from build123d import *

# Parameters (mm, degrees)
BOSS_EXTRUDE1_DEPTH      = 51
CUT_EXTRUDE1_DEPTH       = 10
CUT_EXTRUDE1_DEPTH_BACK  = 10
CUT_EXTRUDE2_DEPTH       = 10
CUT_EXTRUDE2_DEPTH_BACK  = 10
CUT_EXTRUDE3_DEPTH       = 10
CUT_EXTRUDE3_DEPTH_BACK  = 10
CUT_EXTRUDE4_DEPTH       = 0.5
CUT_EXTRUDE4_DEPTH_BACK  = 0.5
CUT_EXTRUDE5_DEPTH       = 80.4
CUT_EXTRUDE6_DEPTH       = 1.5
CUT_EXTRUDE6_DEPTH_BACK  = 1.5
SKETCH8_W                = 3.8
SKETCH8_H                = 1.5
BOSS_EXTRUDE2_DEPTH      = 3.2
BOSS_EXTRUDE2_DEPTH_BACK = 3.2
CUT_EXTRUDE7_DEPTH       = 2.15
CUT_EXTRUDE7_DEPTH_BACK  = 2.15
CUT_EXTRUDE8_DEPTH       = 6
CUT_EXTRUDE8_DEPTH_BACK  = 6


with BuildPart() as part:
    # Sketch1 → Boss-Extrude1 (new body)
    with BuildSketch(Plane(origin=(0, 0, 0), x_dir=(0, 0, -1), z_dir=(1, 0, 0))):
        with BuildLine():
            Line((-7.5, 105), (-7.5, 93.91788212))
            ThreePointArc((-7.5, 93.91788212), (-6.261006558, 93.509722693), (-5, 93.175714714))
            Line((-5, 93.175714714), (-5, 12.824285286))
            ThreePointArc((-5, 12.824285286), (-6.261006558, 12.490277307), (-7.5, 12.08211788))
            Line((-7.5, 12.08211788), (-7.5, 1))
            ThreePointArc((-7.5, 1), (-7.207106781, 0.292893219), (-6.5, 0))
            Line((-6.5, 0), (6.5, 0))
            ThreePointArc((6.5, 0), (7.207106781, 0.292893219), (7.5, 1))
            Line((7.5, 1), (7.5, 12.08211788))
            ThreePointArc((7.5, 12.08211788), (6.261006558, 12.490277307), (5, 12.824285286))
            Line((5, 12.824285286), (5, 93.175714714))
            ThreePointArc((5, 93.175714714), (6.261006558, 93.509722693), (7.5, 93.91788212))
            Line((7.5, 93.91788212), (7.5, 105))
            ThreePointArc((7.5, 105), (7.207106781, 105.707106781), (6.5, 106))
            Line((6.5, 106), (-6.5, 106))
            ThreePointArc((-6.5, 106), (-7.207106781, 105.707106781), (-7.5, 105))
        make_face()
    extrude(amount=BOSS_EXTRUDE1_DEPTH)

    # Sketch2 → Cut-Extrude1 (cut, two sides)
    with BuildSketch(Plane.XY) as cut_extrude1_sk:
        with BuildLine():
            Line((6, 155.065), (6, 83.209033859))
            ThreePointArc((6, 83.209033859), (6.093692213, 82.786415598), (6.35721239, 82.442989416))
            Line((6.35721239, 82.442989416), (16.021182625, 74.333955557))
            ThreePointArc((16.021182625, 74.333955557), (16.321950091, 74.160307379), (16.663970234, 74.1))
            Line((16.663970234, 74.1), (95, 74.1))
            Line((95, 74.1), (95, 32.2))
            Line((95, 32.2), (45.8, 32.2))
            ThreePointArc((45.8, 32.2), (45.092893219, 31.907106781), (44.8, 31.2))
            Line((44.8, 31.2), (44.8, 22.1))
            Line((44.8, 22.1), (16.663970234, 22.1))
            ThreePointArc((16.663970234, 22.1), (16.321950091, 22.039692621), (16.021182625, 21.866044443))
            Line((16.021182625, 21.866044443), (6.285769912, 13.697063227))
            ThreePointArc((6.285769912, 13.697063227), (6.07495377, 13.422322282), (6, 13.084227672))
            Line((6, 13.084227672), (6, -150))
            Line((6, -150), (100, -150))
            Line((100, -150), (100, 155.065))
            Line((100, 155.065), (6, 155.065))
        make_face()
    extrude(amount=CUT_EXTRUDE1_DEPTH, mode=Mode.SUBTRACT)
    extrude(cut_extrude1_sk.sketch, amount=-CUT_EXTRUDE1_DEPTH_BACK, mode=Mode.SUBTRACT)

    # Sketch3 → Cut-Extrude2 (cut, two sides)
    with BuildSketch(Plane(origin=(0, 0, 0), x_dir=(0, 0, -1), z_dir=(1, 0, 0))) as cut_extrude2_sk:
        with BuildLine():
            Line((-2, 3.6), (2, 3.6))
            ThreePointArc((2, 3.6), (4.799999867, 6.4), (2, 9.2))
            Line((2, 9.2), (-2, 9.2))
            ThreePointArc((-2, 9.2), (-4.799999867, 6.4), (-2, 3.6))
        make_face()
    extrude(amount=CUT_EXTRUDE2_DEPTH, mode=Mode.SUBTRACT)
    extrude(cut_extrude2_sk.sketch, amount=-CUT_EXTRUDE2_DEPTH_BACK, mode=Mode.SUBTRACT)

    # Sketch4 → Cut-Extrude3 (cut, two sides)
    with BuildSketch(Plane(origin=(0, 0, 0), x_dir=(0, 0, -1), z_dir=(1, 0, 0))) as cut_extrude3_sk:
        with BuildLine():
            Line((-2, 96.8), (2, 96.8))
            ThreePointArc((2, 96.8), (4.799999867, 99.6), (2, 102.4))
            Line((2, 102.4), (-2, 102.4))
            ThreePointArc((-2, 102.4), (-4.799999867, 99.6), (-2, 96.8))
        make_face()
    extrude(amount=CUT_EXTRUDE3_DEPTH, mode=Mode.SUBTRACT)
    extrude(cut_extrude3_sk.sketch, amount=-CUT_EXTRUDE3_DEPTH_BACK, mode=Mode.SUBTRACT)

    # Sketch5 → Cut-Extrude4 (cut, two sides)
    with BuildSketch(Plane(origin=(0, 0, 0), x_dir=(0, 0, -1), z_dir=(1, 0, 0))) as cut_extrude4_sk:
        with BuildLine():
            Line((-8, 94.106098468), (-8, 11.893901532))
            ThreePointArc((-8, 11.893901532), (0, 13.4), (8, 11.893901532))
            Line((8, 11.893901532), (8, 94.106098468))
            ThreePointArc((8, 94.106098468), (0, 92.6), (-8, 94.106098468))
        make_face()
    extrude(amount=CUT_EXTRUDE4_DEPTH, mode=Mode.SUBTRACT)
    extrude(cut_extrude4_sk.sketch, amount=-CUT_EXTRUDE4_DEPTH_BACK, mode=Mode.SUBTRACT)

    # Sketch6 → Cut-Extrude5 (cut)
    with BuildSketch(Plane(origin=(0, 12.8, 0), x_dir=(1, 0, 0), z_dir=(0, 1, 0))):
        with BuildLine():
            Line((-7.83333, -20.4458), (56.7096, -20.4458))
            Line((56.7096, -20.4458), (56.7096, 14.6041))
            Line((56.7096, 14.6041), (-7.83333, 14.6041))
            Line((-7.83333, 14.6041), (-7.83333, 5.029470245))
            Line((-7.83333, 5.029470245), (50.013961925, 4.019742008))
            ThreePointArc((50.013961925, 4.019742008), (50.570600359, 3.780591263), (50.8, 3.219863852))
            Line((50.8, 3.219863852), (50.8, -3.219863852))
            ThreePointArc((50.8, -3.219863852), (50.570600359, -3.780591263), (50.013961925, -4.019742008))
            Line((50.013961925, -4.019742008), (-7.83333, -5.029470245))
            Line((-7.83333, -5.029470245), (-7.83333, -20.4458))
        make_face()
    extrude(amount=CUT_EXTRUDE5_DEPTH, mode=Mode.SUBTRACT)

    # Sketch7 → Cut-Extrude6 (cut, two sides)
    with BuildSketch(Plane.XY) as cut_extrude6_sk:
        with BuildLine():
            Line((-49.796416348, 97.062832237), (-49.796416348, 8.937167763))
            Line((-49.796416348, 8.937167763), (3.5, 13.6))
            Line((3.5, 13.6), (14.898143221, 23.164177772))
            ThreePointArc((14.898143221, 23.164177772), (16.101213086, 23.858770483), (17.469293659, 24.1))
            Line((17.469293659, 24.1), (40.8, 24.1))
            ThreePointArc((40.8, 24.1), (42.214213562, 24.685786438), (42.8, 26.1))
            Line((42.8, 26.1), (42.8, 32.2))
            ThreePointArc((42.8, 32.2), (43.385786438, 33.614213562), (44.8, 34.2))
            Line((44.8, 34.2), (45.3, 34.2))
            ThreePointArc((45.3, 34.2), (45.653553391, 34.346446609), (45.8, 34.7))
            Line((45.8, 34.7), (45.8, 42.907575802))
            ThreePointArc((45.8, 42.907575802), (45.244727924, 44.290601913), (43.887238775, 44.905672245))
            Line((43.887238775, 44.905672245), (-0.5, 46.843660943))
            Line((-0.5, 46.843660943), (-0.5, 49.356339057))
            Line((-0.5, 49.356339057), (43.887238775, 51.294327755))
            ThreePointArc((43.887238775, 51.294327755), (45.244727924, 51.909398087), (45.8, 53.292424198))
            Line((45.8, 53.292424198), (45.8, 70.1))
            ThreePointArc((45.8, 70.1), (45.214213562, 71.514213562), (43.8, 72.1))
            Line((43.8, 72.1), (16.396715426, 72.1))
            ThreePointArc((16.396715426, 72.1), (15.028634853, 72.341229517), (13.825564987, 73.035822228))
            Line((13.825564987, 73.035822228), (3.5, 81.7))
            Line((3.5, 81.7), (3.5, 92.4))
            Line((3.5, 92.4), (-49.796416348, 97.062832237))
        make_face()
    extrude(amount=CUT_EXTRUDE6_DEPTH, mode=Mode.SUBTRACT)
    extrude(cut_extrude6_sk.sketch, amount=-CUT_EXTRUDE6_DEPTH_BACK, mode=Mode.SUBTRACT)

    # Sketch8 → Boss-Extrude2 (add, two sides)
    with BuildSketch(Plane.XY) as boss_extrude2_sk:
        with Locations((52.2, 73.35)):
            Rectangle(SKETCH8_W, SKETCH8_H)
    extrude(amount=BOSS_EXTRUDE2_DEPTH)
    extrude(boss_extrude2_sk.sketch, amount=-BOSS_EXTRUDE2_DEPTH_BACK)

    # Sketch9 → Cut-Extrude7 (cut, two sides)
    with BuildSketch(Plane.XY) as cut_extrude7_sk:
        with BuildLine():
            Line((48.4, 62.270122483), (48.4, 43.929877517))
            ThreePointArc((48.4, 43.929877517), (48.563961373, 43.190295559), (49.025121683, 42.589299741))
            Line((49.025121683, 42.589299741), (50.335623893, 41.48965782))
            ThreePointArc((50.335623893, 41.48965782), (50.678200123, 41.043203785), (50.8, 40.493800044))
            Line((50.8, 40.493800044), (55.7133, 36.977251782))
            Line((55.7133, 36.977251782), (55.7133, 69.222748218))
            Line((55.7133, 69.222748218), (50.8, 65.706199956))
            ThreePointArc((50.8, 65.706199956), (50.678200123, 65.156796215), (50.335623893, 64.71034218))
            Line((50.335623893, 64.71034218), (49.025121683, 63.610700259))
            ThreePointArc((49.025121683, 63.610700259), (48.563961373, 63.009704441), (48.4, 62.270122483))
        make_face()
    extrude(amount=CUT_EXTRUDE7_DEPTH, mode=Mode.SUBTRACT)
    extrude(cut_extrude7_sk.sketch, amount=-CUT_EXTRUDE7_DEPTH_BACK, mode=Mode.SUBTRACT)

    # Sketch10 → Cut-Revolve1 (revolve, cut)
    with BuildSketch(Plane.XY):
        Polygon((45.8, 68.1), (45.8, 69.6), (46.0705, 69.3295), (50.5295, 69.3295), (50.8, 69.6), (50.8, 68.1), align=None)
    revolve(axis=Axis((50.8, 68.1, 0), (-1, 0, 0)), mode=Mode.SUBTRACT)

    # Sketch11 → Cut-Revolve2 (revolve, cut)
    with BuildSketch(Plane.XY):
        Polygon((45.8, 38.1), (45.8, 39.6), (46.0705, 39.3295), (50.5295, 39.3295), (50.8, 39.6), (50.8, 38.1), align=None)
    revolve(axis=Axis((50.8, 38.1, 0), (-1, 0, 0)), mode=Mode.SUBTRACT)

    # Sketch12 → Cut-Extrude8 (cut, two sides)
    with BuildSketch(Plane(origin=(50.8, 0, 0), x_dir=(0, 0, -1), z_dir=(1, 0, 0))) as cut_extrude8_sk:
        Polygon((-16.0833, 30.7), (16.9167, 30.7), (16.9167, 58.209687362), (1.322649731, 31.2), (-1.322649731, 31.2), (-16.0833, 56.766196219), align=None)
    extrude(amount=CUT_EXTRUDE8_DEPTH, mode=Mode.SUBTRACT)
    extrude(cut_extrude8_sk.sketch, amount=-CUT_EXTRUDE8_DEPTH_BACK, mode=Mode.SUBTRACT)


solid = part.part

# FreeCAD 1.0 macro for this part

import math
import FreeCAD as App
import Part
import Sketcher

V = App.Vector
Q = App.Units.Quantity


def add_polygon(sketch, points):
    """Adds a closed chain of lines whose ends are joined by coincident constraints."""
    first, n = sketch.GeometryCount, len(points)
    for a, b in zip(points, points[1:] + points[:1]):
        sketch.addGeometry(Part.LineSegment(App.Vector(*a, 0), App.Vector(*b, 0)), False)
    for i in range(n):
        sketch.addConstraint(Sketcher.Constraint("Coincident", first + i, 2, first + (i + 1) % n, 1))

doc = App.newDocument("Part")
body = doc.addObject("PartDesign::Body", "Body")

# Sketch on YZ plane
sketch1 = doc.addObject("Sketcher::SketchObject", "Sketch")
body.addObject(sketch1)
sketch1.AttachmentSupport = (doc.YZ_Plane, [""])
sketch1.MapMode = "FlatFace"
sketch1.addGeometry(Part.LineSegment(V(105, 7.5, 0), V(93.9, 7.5, 0)), False)
sketch1.addGeometry(Part.ArcOfCircle(Part.Circle(V(114.6, 0, 0), V(0, 0, 1), 22), math.radians(160.07), math.radians(166.86)), False)
sketch1.addGeometry(Part.LineSegment(V(93.2, 5, 0), V(12.8, 5, 0)), False)
sketch1.addGeometry(Part.ArcOfCircle(Part.Circle(V(-8.6, 0, 0), V(0, 0, 1), 22), math.radians(13.14), math.radians(19.93)), False)
sketch1.addGeometry(Part.LineSegment(V(12.1, 7.5, 0), V(1, 7.5, 0)), False)
sketch1.addGeometry(Part.ArcOfCircle(Part.Circle(V(1, 6.5, 0), V(0, 0, 1), 1), math.radians(90), math.radians(180)), False)
sketch1.addGeometry(Part.LineSegment(V(0, 6.5, 0), V(0, -6.5, 0)), False)
sketch1.addGeometry(Part.ArcOfCircle(Part.Circle(V(1, -6.5, 0), V(0, 0, 1), 1), math.radians(-180), math.radians(-90)), False)
sketch1.addGeometry(Part.LineSegment(V(1, -7.5, 0), V(12.1, -7.5, 0)), False)
sketch1.addGeometry(Part.ArcOfCircle(Part.Circle(V(-8.6, 0, 0), V(0, 0, 1), 22), math.radians(-19.93), math.radians(-13.14)), False)
sketch1.addGeometry(Part.LineSegment(V(12.8, -5, 0), V(93.2, -5, 0)), False)
sketch1.addGeometry(Part.ArcOfCircle(Part.Circle(V(114.6, 0, 0), V(0, 0, 1), 22), math.radians(-166.86), math.radians(-160.07)), False)
sketch1.addGeometry(Part.LineSegment(V(93.9, -7.5, 0), V(105, -7.5, 0)), False)
sketch1.addGeometry(Part.ArcOfCircle(Part.Circle(V(105, -6.5, 0), V(0, 0, 1), 1), math.radians(-90), math.radians(0)), False)
sketch1.addGeometry(Part.LineSegment(V(106, -6.5, 0), V(106, 6.5, 0)), False)
sketch1.addGeometry(Part.ArcOfCircle(Part.Circle(V(105, 6.5, 0), V(0, 0, 1), 1), math.radians(0), math.radians(90)), False)
sketch1.addConstraint(Sketcher.Constraint("Coincident", 0, 2, 1, 1))
sketch1.addConstraint(Sketcher.Constraint("Coincident", 1, 2, 2, 1))
sketch1.addConstraint(Sketcher.Constraint("Coincident", 2, 2, 3, 1))
sketch1.addConstraint(Sketcher.Constraint("Coincident", 3, 2, 4, 1))
sketch1.addConstraint(Sketcher.Constraint("Tangent", 4, 2, 5, 1))
sketch1.addConstraint(Sketcher.Constraint("Tangent", 5, 2, 6, 1))
sketch1.addConstraint(Sketcher.Constraint("Tangent", 6, 2, 7, 1))
sketch1.addConstraint(Sketcher.Constraint("Tangent", 7, 2, 8, 1))
sketch1.addConstraint(Sketcher.Constraint("Coincident", 8, 2, 9, 1))
sketch1.addConstraint(Sketcher.Constraint("Coincident", 9, 2, 10, 1))
sketch1.addConstraint(Sketcher.Constraint("Coincident", 10, 2, 11, 1))
sketch1.addConstraint(Sketcher.Constraint("Coincident", 11, 2, 12, 1))
sketch1.addConstraint(Sketcher.Constraint("Tangent", 12, 2, 13, 1))
sketch1.addConstraint(Sketcher.Constraint("Tangent", 13, 2, 14, 1))
sketch1.addConstraint(Sketcher.Constraint("Tangent", 14, 2, 15, 1))
sketch1.addConstraint(Sketcher.Constraint("Tangent", 15, 2, 0, 1))
sketch1.addConstraint(Sketcher.Constraint("Horizontal", 0))
sketch1.addConstraint(Sketcher.Constraint("Horizontal", 2))
sketch1.addConstraint(Sketcher.Constraint("Horizontal", 4))
sketch1.addConstraint(Sketcher.Constraint("Vertical", 6))
sketch1.addConstraint(Sketcher.Constraint("Horizontal", 8))
sketch1.addConstraint(Sketcher.Constraint("Horizontal", 10))
sketch1.addConstraint(Sketcher.Constraint("Horizontal", 12))
sketch1.addConstraint(Sketcher.Constraint("Vertical", 14))
sketch1.addConstraint(Sketcher.Constraint("Coincident", 9, 3, 3, 3))
sketch1.addConstraint(Sketcher.Constraint("Coincident", 11, 3, 1, 3))
sketch1.addConstraint(Sketcher.Constraint("Equal", 1, 3))
sketch1.addConstraint(Sketcher.Constraint("Equal", 5, 7))
sketch1.addConstraint(Sketcher.Constraint("Equal", 3, 9))
sketch1.addConstraint(Sketcher.Constraint("Equal", 9, 11))
sketch1.addConstraint(Sketcher.Constraint("Equal", 7, 13))
sketch1.addConstraint(Sketcher.Constraint("Equal", 13, 15))
sketch1.addConstraint(Sketcher.Constraint("Symmetric", 5, 2, 6, 2, -1, 1))
sketch1.addConstraint(Sketcher.Constraint("Symmetric", 2, 2, 9, 2, -1))
sketch1.addConstraint(Sketcher.Constraint("Symmetric", 0, 2, 11, 2, -1))
sketch1.addConstraint(Sketcher.Constraint("Horizontal", 7, 3, 13, 3))
sketch1.addConstraint(Sketcher.Constraint("Equal", 0, 4))
sketch1.addConstraint(Sketcher.Constraint("Radius", 1, Q("22 mm")))
sketch1.addConstraint(Sketcher.Constraint("Radius", 5, Q("1 mm")))
sketch1.addConstraint(Sketcher.Constraint("DistanceY", 6, 2, 6, 1, Q("13 mm")))
sketch1.addConstraint(Sketcher.Constraint("DistanceX", -1, 1, 13, 3, Q("105 mm")))
sketch1.addConstraint(Sketcher.Constraint("DistanceY", -1, 1, 1, 2, Q("5 mm")))
sketch1.addConstraint(Sketcher.Constraint("DistanceX", -1, 1, 1, 3, Q("114.6 mm")))
pad1 = doc.addObject("PartDesign::Pad", "Pad")
body.addObject(pad1)
pad1.Profile = sketch1
pad1.Length = 51

# Sketch on XY plane
sketch2 = doc.addObject("Sketcher::SketchObject", "Sketch001")
body.addObject(sketch2)
sketch2.AttachmentSupport = (doc.XY_Plane, [""])
sketch2.MapMode = "FlatFace"
sketch2.addGeometry(Part.LineSegment(V(6, 155.1, 0), V(6, 83.2, 0)), False)
sketch2.addGeometry(Part.ArcOfCircle(Part.Circle(V(7, 83.2, 0), V(0, 0, 1), 1), math.radians(-180), math.radians(-130)), False)
sketch2.addGeometry(Part.LineSegment(V(6.4, 82.4, 0), V(16, 74.3, 0)), False)
sketch2.addGeometry(Part.ArcOfCircle(Part.Circle(V(16.7, 75.1, 0), V(0, 0, 1), 1), math.radians(-130), math.radians(-90)), False)
sketch2.addGeometry(Part.LineSegment(V(16.7, 74.1, 0), V(95, 74.1, 0)), False)
sketch2.addGeometry(Part.LineSegment(V(95, 74.1, 0), V(95, 32.2, 0)), False)
sketch2.addGeometry(Part.LineSegment(V(95, 32.2, 0), V(45.8, 32.2, 0)), False)
sketch2.addGeometry(Part.ArcOfCircle(Part.Circle(V(45.8, 31.2, 0), V(0, 0, 1), 1), math.radians(90), math.radians(180)), False)
sketch2.addGeometry(Part.LineSegment(V(44.8, 31.2, 0), V(44.8, 22.1, 0)), False)
sketch2.addGeometry(Part.LineSegment(V(44.8, 22.1, 0), V(16.7, 22.1, 0)), False)
sketch2.addGeometry(Part.ArcOfCircle(Part.Circle(V(16.7, 21.1, 0), V(0, 0, 1), 1), math.radians(90), math.radians(130)), False)
sketch2.addGeometry(Part.LineSegment(V(16, 21.9, 0), V(6.3, 13.7, 0)), False)
sketch2.addGeometry(Part.ArcOfCircle(Part.Circle(V(6.8, 13.1, 0), V(0, 0, 1), 0.8), math.radians(130), math.radians(180)), False)
sketch2.addGeometry(Part.LineSegment(V(6, 13.1, 0), V(6, -150, 0)), False)
sketch2.addGeometry(Part.LineSegment(V(6, -150, 0), V(100, -150, 0)), False)
sketch2.addGeometry(Part.LineSegment(V(100, -150, 0), V(100, 155.1, 0)), False)
sketch2.addGeometry(Part.LineSegment(V(100, 155.1, 0), V(6, 155.1, 0)), False)
sketch2.addConstraint(Sketcher.Constraint("Tangent", 0, 2, 1, 1))
sketch2.addConstraint(Sketcher.Constraint("Tangent", 1, 2, 2, 1))
sketch2.addConstraint(Sketcher.Constraint("Tangent", 2, 2, 3, 1))
sketch2.addConstraint(Sketcher.Constraint("Tangent", 3, 2, 4, 1))
sketch2.addConstraint(Sketcher.Constraint("Coincident", 4, 2, 5, 1))
sketch2.addConstraint(Sketcher.Constraint("Coincident", 5, 2, 6, 1))
sketch2.addConstraint(Sketcher.Constraint("Tangent", 6, 2, 7, 1))
sketch2.addConstraint(Sketcher.Constraint("Tangent", 7, 2, 8, 1))
sketch2.addConstraint(Sketcher.Constraint("Coincident", 8, 2, 9, 1))
sketch2.addConstraint(Sketcher.Constraint("Tangent", 9, 2, 10, 1))
sketch2.addConstraint(Sketcher.Constraint("Tangent", 10, 2, 11, 1))
sketch2.addConstraint(Sketcher.Constraint("Tangent", 11, 2, 12, 1))
sketch2.addConstraint(Sketcher.Constraint("Tangent", 12, 2, 13, 1))
sketch2.addConstraint(Sketcher.Constraint("Coincident", 13, 2, 14, 1))
sketch2.addConstraint(Sketcher.Constraint("Coincident", 14, 2, 15, 1))
sketch2.addConstraint(Sketcher.Constraint("Coincident", 15, 2, 16, 1))
sketch2.addConstraint(Sketcher.Constraint("Coincident", 16, 2, 0, 1))
sketch2.addConstraint(Sketcher.Constraint("Vertical", 0))
sketch2.addConstraint(Sketcher.Constraint("Horizontal", 4))
sketch2.addConstraint(Sketcher.Constraint("Vertical", 5))
sketch2.addConstraint(Sketcher.Constraint("Horizontal", 6))
sketch2.addConstraint(Sketcher.Constraint("Vertical", 8))
sketch2.addConstraint(Sketcher.Constraint("Horizontal", 9))
sketch2.addConstraint(Sketcher.Constraint("Vertical", 13))
sketch2.addConstraint(Sketcher.Constraint("Horizontal", 14))
sketch2.addConstraint(Sketcher.Constraint("Vertical", 15))
sketch2.addConstraint(Sketcher.Constraint("Horizontal", 16))
sketch2.addConstraint(Sketcher.Constraint("Equal", 1, 3))
sketch2.addConstraint(Sketcher.Constraint("Equal", 3, 7))
sketch2.addConstraint(Sketcher.Constraint("Equal", 7, 10))
sketch2.addConstraint(Sketcher.Constraint("Vertical", 3, 3, 10, 3))
sketch2.addConstraint(Sketcher.Constraint("Vertical", 2, 2, 10, 2))
sketch2.addConstraint(Sketcher.Constraint("Vertical", 0, 2, 12, 2))
sketch2.addConstraint(Sketcher.Constraint("Radius", 1, Q("1 mm")))
sketch2.addConstraint(Sketcher.Constraint("Radius", 12, Q("0.8 mm")))
sketch2.addConstraint(Sketcher.Constraint("DistanceX", 14, 1, 14, 2, Q("94 mm")))
sketch2.addConstraint(Sketcher.Constraint("Angle", 2, Q("-40 deg")))
sketch2.addConstraint(Sketcher.Constraint("DistanceX", 6, 2, 6, 1, Q("49.2 mm")))
sketch2.addConstraint(Sketcher.Constraint("DistanceY", 5, 2, 5, 1, Q("41.9 mm")))
sketch2.addConstraint(Sketcher.Constraint("DistanceY", 8, 2, 8, 1, Q("9.1 mm")))
sketch2.addConstraint(Sketcher.Constraint("DistanceX", -1, 1, 1, 3, Q("7 mm")))
sketch2.addConstraint(Sketcher.Constraint("DistanceX", -1, 1, 4, 2, Q("95 mm")))
sketch2.addConstraint(Sketcher.Constraint("DistanceY", 13, 2, -1, 1, Q("150 mm")))
sketch2.addConstraint(Sketcher.Constraint("DistanceY", -1, 1, 3, 3, Q("75.1 mm")))
sketch2.addConstraint(Sketcher.Constraint("DistanceY", 15, 1, 15, 2, Q("305.065 mm")))
sketch2.addConstraint(Sketcher.Constraint("DistanceX", 4, 1, 4, 2, Q("78.33603 mm")))
pocket1 = doc.addObject("PartDesign::Pocket", "Pocket")
body.addObject(pocket1)
pocket1.Profile = sketch2
pocket1.Type = "ThroughAll"
pocket1.Midplane = True

# Sketch on YZ plane
sketch3 = doc.addObject("Sketcher::SketchObject", "Sketch002")
body.addObject(sketch3)
sketch3.AttachmentSupport = (doc.YZ_Plane, [""])
sketch3.MapMode = "FlatFace"
sketch3.addGeometry(Part.LineSegment(V(3.6, 2, 0), V(3.6, -2, 0)), False)
sketch3.addGeometry(Part.ArcOfCircle(Part.Circle(V(6.4, -2, 0), V(0, 0, 1), 2.8), math.radians(-180), math.radians(0)), False)
sketch3.addGeometry(Part.LineSegment(V(9.2, -2, 0), V(9.2, 2, 0)), False)
sketch3.addGeometry(Part.ArcOfCircle(Part.Circle(V(6.4, 2, 0), V(0, 0, 1), 2.8), math.radians(0), math.radians(180)), False)
sketch3.addConstraint(Sketcher.Constraint("Tangent", 0, 2, 1, 1))
sketch3.addConstraint(Sketcher.Constraint("Tangent", 1, 2, 2, 1))
sketch3.addConstraint(Sketcher.Constraint("Tangent", 2, 2, 3, 1))
sketch3.addConstraint(Sketcher.Constraint("Tangent", 3, 2, 0, 1))
sketch3.addConstraint(Sketcher.Constraint("Vertical", 0))
sketch3.addConstraint(Sketcher.Constraint("Vertical", 2))
sketch3.addConstraint(Sketcher.Constraint("Radius", 1, Q("2.8 mm")))
sketch3.addConstraint(Sketcher.Constraint("DistanceY", 0, 2, 0, 1, Q("4 mm")))
sketch3.addConstraint(Sketcher.Constraint("DistanceY", 1, 3, -1, 1, Q("2 mm")))
sketch3.addConstraint(Sketcher.Constraint("DistanceX", -1, 1, 1, 3, Q("6.4 mm")))
pocket2 = doc.addObject("PartDesign::Pocket", "Pocket001")
body.addObject(pocket2)
pocket2.Profile = sketch3
pocket2.Type = "ThroughAll"
pocket2.Midplane = True

# Sketch on YZ plane
sketch4 = doc.addObject("Sketcher::SketchObject", "Sketch003")
body.addObject(sketch4)
sketch4.AttachmentSupport = (doc.YZ_Plane, [""])
sketch4.MapMode = "FlatFace"
sketch4.addGeometry(Part.LineSegment(V(96.8, 2, 0), V(96.8, -2, 0)), False)
sketch4.addGeometry(Part.ArcOfCircle(Part.Circle(V(99.6, -2, 0), V(0, 0, 1), 2.8), math.radians(-180), math.radians(0)), False)
sketch4.addGeometry(Part.LineSegment(V(102.4, -2, 0), V(102.4, 2, 0)), False)
sketch4.addGeometry(Part.ArcOfCircle(Part.Circle(V(99.6, 2, 0), V(0, 0, 1), 2.8), math.radians(0), math.radians(180)), False)
sketch4.addConstraint(Sketcher.Constraint("Tangent", 0, 2, 1, 1))
sketch4.addConstraint(Sketcher.Constraint("Tangent", 1, 2, 2, 1))
sketch4.addConstraint(Sketcher.Constraint("Tangent", 2, 2, 3, 1))
sketch4.addConstraint(Sketcher.Constraint("Tangent", 3, 2, 0, 1))
sketch4.addConstraint(Sketcher.Constraint("Vertical", 0))
sketch4.addConstraint(Sketcher.Constraint("Vertical", 2))
sketch4.addConstraint(Sketcher.Constraint("Radius", 1, Q("2.8 mm")))
sketch4.addConstraint(Sketcher.Constraint("DistanceY", 0, 2, 0, 1, Q("4 mm")))
sketch4.addConstraint(Sketcher.Constraint("DistanceY", 1, 3, -1, 1, Q("2 mm")))
sketch4.addConstraint(Sketcher.Constraint("DistanceX", -1, 1, 1, 3, Q("99.6 mm")))
pocket3 = doc.addObject("PartDesign::Pocket", "Pocket002")
body.addObject(pocket3)
pocket3.Profile = sketch4
pocket3.Type = "ThroughAll"
pocket3.Midplane = True

# Sketch on YZ plane
sketch5 = doc.addObject("Sketcher::SketchObject", "Sketch004")
body.addObject(sketch5)
sketch5.AttachmentSupport = (doc.YZ_Plane, [""])
sketch5.MapMode = "FlatFace"
sketch5.addGeometry(Part.LineSegment(V(94, 8, 0), V(12, 8, 0)), False)
sketch5.addGeometry(Part.ArcOfCircle(Part.Circle(V(-9, 0, 0), V(0, 0, 1), 22), math.radians(-21), math.radians(21)), False)
sketch5.addGeometry(Part.LineSegment(V(12, -8, 0), V(94, -8, 0)), False)
sketch5.addGeometry(Part.ArcOfCircle(Part.Circle(V(115, 0, 0), V(0, 0, 1), 22), math.radians(159), math.radians(201)), False)
sketch5.addConstraint(Sketcher.Constraint("Coincident", 0, 2, 1, 2))
sketch5.addConstraint(Sketcher.Constraint("Coincident", 1, 1, 2, 1))
sketch5.addConstraint(Sketcher.Constraint("Coincident", 2, 2, 3, 2))
sketch5.addConstraint(Sketcher.Constraint("Coincident", 3, 1, 0, 1))
sketch5.addConstraint(Sketcher.Constraint("Horizontal", 0))
sketch5.addConstraint(Sketcher.Constraint("Horizontal", 2))
sketch5.addConstraint(Sketcher.Constraint("Equal", 1, 3))
sketch5.addConstraint(Sketcher.Constraint("Symmetric", 0, 2, 1, 1, -1))
sketch5.addConstraint(Sketcher.Constraint("PointOnObject", 3, 3, -1))
sketch5.addConstraint(Sketcher.Constraint("Radius", 1, Q("22 mm")))
sketch5.addConstraint(Sketcher.Constraint("DistanceY", -1, 1, 0, 2, Q("8 mm")))
sketch5.addConstraint(Sketcher.Constraint("DistanceX", 1, 3, -1, 1, Q("8.6 mm")))
sketch5.addConstraint(Sketcher.Constraint("DistanceX", -1, 1, 3, 3, Q("114.6 mm")))
pocket4 = doc.addObject("PartDesign::Pocket", "Pocket003")
body.addObject(pocket4)
pocket4.Profile = sketch5
pocket4.Type = "TwoLengths"
pocket4.Length = 0.5
pocket4.Length2 = 0.5
pocket4.Reversed = True

# Sketch on XZ plane
sketch6 = doc.addObject("Sketcher::SketchObject", "Sketch005")
body.addObject(sketch6)
sketch6.AttachmentSupport = (doc.XZ_Plane, [""])
sketch6.MapMode = "FlatFace"
sketch6.AttachmentOffset = App.Placement(V(0, 0, -12.8), App.Rotation())
sketch6.addGeometry(Part.LineSegment(V(-7.8, 20.4, 0), V(56.7, 20.4, 0)), False)
sketch6.addGeometry(Part.LineSegment(V(56.7, 20.4, 0), V(56.7, -14.6, 0)), False)
sketch6.addGeometry(Part.LineSegment(V(56.7, -14.6, 0), V(-7.8, -14.6, 0)), False)
sketch6.addGeometry(Part.LineSegment(V(-7.8, -14.6, 0), V(-7.8, -5, 0)), False)
sketch6.addGeometry(Part.LineSegment(V(-7.8, -5, 0), V(50, -4, 0)), False)
sketch6.addGeometry(Part.ArcOfCircle(Part.Circle(V(50, -3.2, 0), V(0, 0, 1), 0.8), math.radians(-89), math.radians(0)), False)
sketch6.addGeometry(Part.LineSegment(V(50.8, -3.2, 0), V(50.8, 3.2, 0)), False)
sketch6.addGeometry(Part.ArcOfCircle(Part.Circle(V(50, 3.2, 0), V(0, 0, 1), 0.8), math.radians(0), math.radians(89)), False)
sketch6.addGeometry(Part.LineSegment(V(50, 4, 0), V(-7.8, 5, 0)), False)
sketch6.addGeometry(Part.LineSegment(V(-7.8, 5, 0), V(-7.8, 20.4, 0)), False)
sketch6.addConstraint(Sketcher.Constraint("Coincident", 0, 2, 1, 1))
sketch6.addConstraint(Sketcher.Constraint("Coincident", 1, 2, 2, 1))
sketch6.addConstraint(Sketcher.Constraint("Coincident", 2, 2, 3, 1))
sketch6.addConstraint(Sketcher.Constraint("Coincident", 3, 2, 4, 1))
sketch6.addConstraint(Sketcher.Constraint("Tangent", 4, 2, 5, 1))
sketch6.addConstraint(Sketcher.Constraint("Tangent", 5, 2, 6, 1))
sketch6.addConstraint(Sketcher.Constraint("Tangent", 6, 2, 7, 1))
sketch6.addConstraint(Sketcher.Constraint("Tangent", 7, 2, 8, 1))
sketch6.addConstraint(Sketcher.Constraint("Coincident", 8, 2, 9, 1))
sketch6.addConstraint(Sketcher.Constraint("Coincident", 9, 2, 0, 1))
sketch6.addConstraint(Sketcher.Constraint("Horizontal", 0))
sketch6.addConstraint(Sketcher.Constraint("Vertical", 1))
sketch6.addConstraint(Sketcher.Constraint("Horizontal", 2))
sketch6.addConstraint(Sketcher.Constraint("Vertical", 3))
sketch6.addConstraint(Sketcher.Constraint("Vertical", 6))
sketch6.addConstraint(Sketcher.Constraint("Vertical", 9))
sketch6.addConstraint(Sketcher.Constraint("Equal", 5, 7))
sketch6.addConstraint(Sketcher.Constraint("Symmetric", 4, 2, 7, 2, -1))
sketch6.addConstraint(Sketcher.Constraint("Vertical", 3, 2, 8, 2))
sketch6.addConstraint(Sketcher.Constraint("Radius", 5, Q("0.8 mm")))
sketch6.addConstraint(Sketcher.Constraint("Angle", 4, Q("1 deg")))
sketch6.addConstraint(Sketcher.Constraint("DistanceX", -1, 1, 5, 3, Q("50 mm")))
sketch6.addConstraint(Sketcher.Constraint("DistanceY", 1, 2, 1, 1, Q("35.0499 mm")))
sketch6.addConstraint(Sketcher.Constraint("DistanceX", 0, 1, 0, 2, Q("64.54293 mm")))
sketch6.addConstraint(Sketcher.Constraint("DistanceY", 3, 1, 3, 2, Q("9.57463 mm")))
sketch6.addConstraint(Sketcher.Constraint("DistanceY", 9, 1, 9, 2, Q("15.41633 mm")))
sketch6.addConstraint(Sketcher.Constraint("DistanceX", -1, 1, 0, 2, Q("56.7096 mm")))
pocket5 = doc.addObject("PartDesign::Pocket", "Pocket004")
body.addObject(pocket5)
pocket5.Profile = sketch6
pocket5.Length = 80.4

# Sketch on XY plane
sketch7 = doc.addObject("Sketcher::SketchObject", "Sketch006")
body.addObject(sketch7)
sketch7.AttachmentSupport = (doc.XY_Plane, [""])
sketch7.MapMode = "FlatFace"
sketch7.addGeometry(Part.LineSegment(V(-49.8, 97.06, 0), V(-49.8, 8.94, 0)), False)
sketch7.addGeometry(Part.LineSegment(V(-49.8, 8.94, 0), V(3.5, 13.6, 0)), False)
sketch7.addGeometry(Part.LineSegment(V(3.5, 13.6, 0), V(14.9, 23.16, 0)), False)
sketch7.addGeometry(Part.ArcOfCircle(Part.Circle(V(17.47, 20.1, 0), V(0, 0, 1), 4), math.radians(90), math.radians(130)), False)
sketch7.addGeometry(Part.LineSegment(V(17.47, 24.1, 0), V(40.8, 24.1, 0)), False)
sketch7.addGeometry(Part.ArcOfCircle(Part.Circle(V(40.8, 26.1, 0), V(0, 0, 1), 2), math.radians(-90), math.radians(0)), False)
sketch7.addGeometry(Part.LineSegment(V(42.8, 26.1, 0), V(42.8, 32.2, 0)), False)
sketch7.addGeometry(Part.ArcOfCircle(Part.Circle(V(44.8, 32.2, 0), V(0, 0, 1), 2), math.radians(90), math.radians(180)), False)
sketch7.addGeometry(Part.LineSegment(V(44.8, 34.2, 0), V(45.3, 34.2, 0)), False)
sketch7.addGeometry(Part.ArcOfCircle(Part.Circle(V(45.3, 34.7, 0), V(0, 0, 1), 0.5), math.radians(-90), math.radians(0)), False)
sketch7.addGeometry(Part.LineSegment(V(45.8, 34.7, 0), V(45.8, 42.91, 0)), False)
sketch7.addGeometry(Part.ArcOfCircle(Part.Circle(V(43.8, 42.91, 0), V(0, 0, 1), 2), math.radians(0), math.radians(87)), False)
sketch7.addGeometry(Part.LineSegment(V(43.89, 44.91, 0), V(-0.5, 46.84, 0)), False)
sketch7.addGeometry(Part.LineSegment(V(-0.5, 46.84, 0), V(-0.5, 49.36, 0)), False)
sketch7.addGeometry(Part.LineSegment(V(-0.5, 49.36, 0), V(43.89, 51.29, 0)), False)
sketch7.addGeometry(Part.ArcOfCircle(Part.Circle(V(43.8, 53.29, 0), V(0, 0, 1), 2), math.radians(-87), math.radians(0)), False)
sketch7.addGeometry(Part.LineSegment(V(45.8, 53.29, 0), V(45.8, 70.1, 0)), False)
sketch7.addGeometry(Part.ArcOfCircle(Part.Circle(V(43.8, 70.1, 0), V(0, 0, 1), 2), math.radians(0), math.radians(90)), False)
sketch7.addGeometry(Part.LineSegment(V(43.8, 72.1, 0), V(16.4, 72.1, 0)), False)
sketch7.addGeometry(Part.ArcOfCircle(Part.Circle(V(16.4, 76.1, 0), V(0, 0, 1), 4), math.radians(-130), math.radians(-90)), False)
sketch7.addGeometry(Part.LineSegment(V(13.83, 73.04, 0), V(3.5, 81.7, 0)), False)
sketch7.addGeometry(Part.LineSegment(V(3.5, 81.7, 0), V(3.5, 92.4, 0)), False)
sketch7.addGeometry(Part.LineSegment(V(3.5, 92.4, 0), V(-49.8, 97.06, 0)), False)
sketch7.addConstraint(Sketcher.Constraint("Coincident", 0, 2, 1, 1))
sketch7.addConstraint(Sketcher.Constraint("Coincident", 1, 2, 2, 1))
sketch7.addConstraint(Sketcher.Constraint("Tangent", 2, 2, 3, 2))
sketch7.addConstraint(Sketcher.Constraint("Tangent", 3, 1, 4, 1))
sketch7.addConstraint(Sketcher.Constraint("Tangent", 4, 2, 5, 1))
sketch7.addConstraint(Sketcher.Constraint("Tangent", 5, 2, 6, 1))
sketch7.addConstraint(Sketcher.Constraint("Tangent", 6, 2, 7, 2))
sketch7.addConstraint(Sketcher.Constraint("Tangent", 7, 1, 8, 1))
sketch7.addConstraint(Sketcher.Constraint("Tangent", 8, 2, 9, 1))
sketch7.addConstraint(Sketcher.Constraint("Tangent", 9, 2, 10, 1))
sketch7.addConstraint(Sketcher.Constraint("Tangent", 10, 2, 11, 1))
sketch7.addConstraint(Sketcher.Constraint("Tangent", 11, 2, 12, 1))
sketch7.addConstraint(Sketcher.Constraint("Coincident", 12, 2, 13, 1))
sketch7.addConstraint(Sketcher.Constraint("Coincident", 13, 2, 14, 1))
sketch7.addConstraint(Sketcher.Constraint("Tangent", 14, 2, 15, 1))
sketch7.addConstraint(Sketcher.Constraint("Tangent", 15, 2, 16, 1))
sketch7.addConstraint(Sketcher.Constraint("Tangent", 16, 2, 17, 1))
sketch7.addConstraint(Sketcher.Constraint("Tangent", 17, 2, 18, 1))
sketch7.addConstraint(Sketcher.Constraint("Tangent", 18, 2, 19, 2))
sketch7.addConstraint(Sketcher.Constraint("Tangent", 19, 1, 20, 1))
sketch7.addConstraint(Sketcher.Constraint("Coincident", 20, 2, 21, 1))
sketch7.addConstraint(Sketcher.Constraint("Coincident", 21, 2, 22, 1))
sketch7.addConstraint(Sketcher.Constraint("Coincident", 22, 2, 0, 1))
sketch7.addConstraint(Sketcher.Constraint("Vertical", 0))
sketch7.addConstraint(Sketcher.Constraint("Horizontal", 4))
sketch7.addConstraint(Sketcher.Constraint("Vertical", 6))
sketch7.addConstraint(Sketcher.Constraint("Horizontal", 8))
sketch7.addConstraint(Sketcher.Constraint("Vertical", 10))
sketch7.addConstraint(Sketcher.Constraint("Vertical", 13))
sketch7.addConstraint(Sketcher.Constraint("Vertical", 16))
sketch7.addConstraint(Sketcher.Constraint("Horizontal", 18))
sketch7.addConstraint(Sketcher.Constraint("Vertical", 21))
sketch7.addConstraint(Sketcher.Constraint("Equal", 5, 7))
sketch7.addConstraint(Sketcher.Constraint("Equal", 7, 11))
sketch7.addConstraint(Sketcher.Constraint("Equal", 11, 15))
sketch7.addConstraint(Sketcher.Constraint("Equal", 15, 17))
sketch7.addConstraint(Sketcher.Constraint("Equal", 3, 19))
sketch7.addConstraint(Sketcher.Constraint("Vertical", 11, 3, 15, 3))
sketch7.addConstraint(Sketcher.Constraint("Vertical", 11, 2, 14, 2))
sketch7.addConstraint(Sketcher.Constraint("Vertical", 1, 2, 20, 2))
sketch7.addConstraint(Sketcher.Constraint("Equal", 1, 22))
sketch7.addConstraint(Sketcher.Constraint("Radius", 3, Q("4 mm")))
sketch7.addConstraint(Sketcher.Constraint("Radius", 5, Q("2 mm")))
sketch7.addConstraint(Sketcher.Constraint("Radius", 9, Q("0.5 mm")))
sketch7.addConstraint(Sketcher.Constraint("Angle", 1, Q("5 deg")))
sketch7.addConstraint(Sketcher.Constraint("Angle", 2, Q("40 deg")))
sketch7.addConstraint(Sketcher.Constraint("Angle", 20, Q("140 deg")))
sketch7.addConstraint(Sketcher.Constraint("DistanceX", 8, 1, 8, 2, Q("0.5 mm")))
sketch7.addConstraint(Sketcher.Constraint("DistanceY", 6, 1, 6, 2, Q("6.1 mm")))
sketch7.addConstraint(Sketcher.Constraint("DistanceY", 21, 1, 21, 2, Q("10.7 mm")))
sketch7.addConstraint(Sketcher.Constraint("Angle", 12, Q("177.5 deg")))
sketch7.addConstraint(Sketcher.Constraint("DistanceY", 5, 3, 17, 3, Q("44 mm")))
sketch7.addConstraint(Sketcher.Constraint("DistanceX", 12, 2, 1, 2, Q("4 mm")))
sketch7.addConstraint(Sketcher.Constraint("Distance", 1, Q("53.5 mm")))
sketch7.addConstraint(Sketcher.Constraint("DistanceY", -1, 1, 3, 3, Q("20.1 mm")))
sketch7.addConstraint(Sketcher.Constraint("DistanceX", -1, 1, 5, 3, Q("40.8 mm")))
sketch7.addConstraint(Sketcher.Constraint("DistanceX", -1, 1, 1, 2, Q("3.5 mm")))
sketch7.addConstraint(Sketcher.Constraint("DistanceY", -1, 1, 1, 2, Q("13.6 mm")))
sketch7.addConstraint(Sketcher.Constraint("DistanceY", -1, 1, 20, 2, Q("81.7 mm")))
sketch7.addConstraint(Sketcher.Constraint("DistanceY", 13, 1, 13, 2, Q("2.512678 mm")))
sketch7.addConstraint(Sketcher.Constraint("DistanceY", 10, 1, 10, 2, Q("8.207576 mm")))
pocket6 = doc.addObject("PartDesign::Pocket", "Pocket005")
body.addObject(pocket6)
pocket6.Profile = sketch7
pocket6.Type = "TwoLengths"
pocket6.Length = 1.5
pocket6.Length2 = 1.5
pocket6.Reversed = True

# Sketch on XY plane
sketch8 = doc.addObject("Sketcher::SketchObject", "Sketch007")
body.addObject(sketch8)
sketch8.AttachmentSupport = (doc.XY_Plane, [""])
sketch8.MapMode = "FlatFace"
add_polygon(sketch8, [(50.3, 74.1), (50.3, 72.6), (54.1, 72.6), (54.1, 74.1)])  # lines 0-3
sketch8.addConstraint(Sketcher.Constraint("Vertical", 0))
sketch8.addConstraint(Sketcher.Constraint("Horizontal", 1))
sketch8.addConstraint(Sketcher.Constraint("Vertical", 2))
sketch8.addConstraint(Sketcher.Constraint("Horizontal", 3))
sketch8.addConstraint(Sketcher.Constraint("DistanceX", 1, 1, 1, 2, Q("3.8 mm")))
sketch8.addConstraint(Sketcher.Constraint("DistanceY", 0, 2, 0, 1, Q("1.5 mm")))
sketch8.addConstraint(Sketcher.Constraint("DistanceX", -1, 1, 0, 2, Q("50.3 mm")))
sketch8.addConstraint(Sketcher.Constraint("DistanceY", -1, 1, 0, 2, Q("72.6 mm")))
pad2 = doc.addObject("PartDesign::Pad", "Pad001")
body.addObject(pad2)
pad2.Profile = sketch8
pad2.Type = "TwoLengths"
pad2.Length = 3.2
pad2.Length2 = 3.2

# Sketch on XY plane
sketch9 = doc.addObject("Sketcher::SketchObject", "Sketch008")
body.addObject(sketch9)
sketch9.AttachmentSupport = (doc.XY_Plane, [""])
sketch9.MapMode = "FlatFace"
sketch9.addGeometry(Part.LineSegment(V(48.4, 62.3, 0), V(48.4, 43.9, 0)), False)
sketch9.addGeometry(Part.ArcOfCircle(Part.Circle(V(50.2, 43.9, 0), V(0, 0, 1), 1.8), math.radians(-180), math.radians(-130)), False)
sketch9.addGeometry(Part.LineSegment(V(49, 42.6, 0), V(50.3, 41.5, 0)), False)
sketch9.addGeometry(Part.ArcOfCircle(Part.Circle(V(49.5, 40.5, 0), V(0, 0, 1), 1.3), math.radians(0), math.radians(50)), False)
sketch9.addGeometry(Part.LineSegment(V(50.8, 40.5, 0), V(55.7, 37, 0)), False)
sketch9.addGeometry(Part.LineSegment(V(55.7, 37, 0), V(55.7, 69.2, 0)), False)
sketch9.addGeometry(Part.LineSegment(V(55.7, 69.2, 0), V(50.8, 65.7, 0)), False)
sketch9.addGeometry(Part.ArcOfCircle(Part.Circle(V(49.5, 65.7, 0), V(0, 0, 1), 1.3), math.radians(-50), math.radians(0)), False)
sketch9.addGeometry(Part.LineSegment(V(50.3, 64.7, 0), V(49, 63.6, 0)), False)
sketch9.addGeometry(Part.ArcOfCircle(Part.Circle(V(50.2, 62.3, 0), V(0, 0, 1), 1.8), math.radians(130), math.radians(180)), False)
sketch9.addConstraint(Sketcher.Constraint("Tangent", 0, 2, 1, 1))
sketch9.addConstraint(Sketcher.Constraint("Tangent", 1, 2, 2, 1))
sketch9.addConstraint(Sketcher.Constraint("Tangent", 2, 2, 3, 2))
sketch9.addConstraint(Sketcher.Constraint("Coincident", 3, 1, 4, 1))
sketch9.addConstraint(Sketcher.Constraint("Coincident", 4, 2, 5, 1))
sketch9.addConstraint(Sketcher.Constraint("Coincident", 5, 2, 6, 1))
sketch9.addConstraint(Sketcher.Constraint("Coincident", 6, 2, 7, 2))
sketch9.addConstraint(Sketcher.Constraint("Tangent", 7, 1, 8, 1))
sketch9.addConstraint(Sketcher.Constraint("Tangent", 8, 2, 9, 1))
sketch9.addConstraint(Sketcher.Constraint("Tangent", 9, 2, 0, 1))
sketch9.addConstraint(Sketcher.Constraint("Vertical", 0))
sketch9.addConstraint(Sketcher.Constraint("Vertical", 5))
sketch9.addConstraint(Sketcher.Constraint("Equal", 3, 7))
sketch9.addConstraint(Sketcher.Constraint("Equal", 1, 9))
sketch9.addConstraint(Sketcher.Constraint("Horizontal", 7, 3, 6, 2))
sketch9.addConstraint(Sketcher.Constraint("Vertical", 3, 3, 7, 3))
sketch9.addConstraint(Sketcher.Constraint("Vertical", 2, 2, 7, 1))
sketch9.addConstraint(Sketcher.Constraint("Equal", 4, 6))
sketch9.addConstraint(Sketcher.Constraint("Radius", 3, Q("1.3 mm")))
sketch9.addConstraint(Sketcher.Constraint("Angle", 2, Q("-40 deg")))
sketch9.addConstraint(Sketcher.Constraint("Radius", 1, Q("1.75 mm")))
sketch9.addConstraint(Sketcher.Constraint("DistanceX", -1, 1, 3, 3, Q("49.5 mm")))
sketch9.addConstraint(Sketcher.Constraint("DistanceX", -1, 1, 0, 2, Q("48.4 mm")))
sketch9.addConstraint(Sketcher.Constraint("DistanceY", -1, 1, 3, 3, Q("40.4938 mm")))
sketch9.addConstraint(Sketcher.Constraint("DistanceY", -1, 1, 7, 3, Q("65.7062 mm")))
sketch9.addConstraint(Sketcher.Constraint("DistanceY", -1, 1, 3, 1, Q("40.4938 mm")))
sketch9.addConstraint(Sketcher.Constraint("DistanceX", -1, 1, 4, 2, Q("55.7133 mm")))
sketch9.addConstraint(Sketcher.Constraint("Distance", 4, Q("6.042072 mm")))
pocket7 = doc.addObject("PartDesign::Pocket", "Pocket006")
body.addObject(pocket7)
pocket7.Profile = sketch9
pocket7.Type = "TwoLengths"
pocket7.Length = 2.15
pocket7.Length2 = 2.15
pocket7.Reversed = True

# Sketch on XY plane
sketch10 = doc.addObject("Sketcher::SketchObject", "Sketch009")
body.addObject(sketch10)
sketch10.AttachmentSupport = (doc.XY_Plane, [""])
sketch10.MapMode = "FlatFace"
add_polygon(sketch10, [(45.8, 69.6), (45.8, 68.1), (50.8, 68.1), (50.8, 69.6), (50.53, 69.33), (46.07, 69.33)])  # lines 0-5
sketch10.addGeometry(Part.LineSegment(V(50.8, 68.1, 0), V(45.8, 68.1, 0)), True)  # axis
sketch10.addConstraint(Sketcher.Constraint("Vertical", 0))
sketch10.addConstraint(Sketcher.Constraint("Horizontal", 1))
sketch10.addConstraint(Sketcher.Constraint("Vertical", 2))
sketch10.addConstraint(Sketcher.Constraint("Horizontal", 4))
sketch10.addConstraint(Sketcher.Constraint("Horizontal", 6))
sketch10.addConstraint(Sketcher.Constraint("Coincident", 6, 1, 1, 2))
sketch10.addConstraint(Sketcher.Constraint("Perpendicular", 3, 5))
sketch10.addConstraint(Sketcher.Constraint("Horizontal", 2, 2, 5, 2))
sketch10.addConstraint(Sketcher.Constraint("Vertical", 5, 2, 6, 2))
sketch10.addConstraint(Sketcher.Constraint("Equal", 3, 5))
sketch10.addConstraint(Sketcher.Constraint("DistanceX", 1, 1, 1, 2, Q("5 mm")))
sketch10.addConstraint(Sketcher.Constraint("DistanceY", 0, 2, 0, 1, Q("1.5 mm")))
sketch10.addConstraint(Sketcher.Constraint("DistanceX", -1, 1, 0, 2, Q("45.8 mm")))
sketch10.addConstraint(Sketcher.Constraint("DistanceY", -1, 1, 0, 2, Q("68.1 mm")))
sketch10.addConstraint(Sketcher.Constraint("DistanceX", 4, 2, 4, 1, Q("4.459 mm")))
groove = doc.addObject("PartDesign::Groove", "Groove")
body.addObject(groove)
groove.Profile = sketch10
groove.ReferenceAxis = (sketch10, ["Axis0"])
groove.Angle = 360

# Sketch on XY plane
sketch11 = doc.addObject("Sketcher::SketchObject", "Sketch010")
body.addObject(sketch11)
sketch11.AttachmentSupport = (doc.XY_Plane, [""])
sketch11.MapMode = "FlatFace"
add_polygon(sketch11, [(45.8, 39.6), (45.8, 38.1), (50.8, 38.1), (50.8, 39.6), (50.53, 39.33), (46.07, 39.33)])  # lines 0-5
sketch11.addGeometry(Part.LineSegment(V(50.8, 38.1, 0), V(45.8, 38.1, 0)), True)  # axis
sketch11.addConstraint(Sketcher.Constraint("Vertical", 0))
sketch11.addConstraint(Sketcher.Constraint("Horizontal", 1))
sketch11.addConstraint(Sketcher.Constraint("Vertical", 2))
sketch11.addConstraint(Sketcher.Constraint("Horizontal", 4))
sketch11.addConstraint(Sketcher.Constraint("Horizontal", 6))
sketch11.addConstraint(Sketcher.Constraint("Coincident", 6, 1, 1, 2))
sketch11.addConstraint(Sketcher.Constraint("Perpendicular", 3, 5))
sketch11.addConstraint(Sketcher.Constraint("Horizontal", 2, 2, 5, 2))
sketch11.addConstraint(Sketcher.Constraint("Vertical", 5, 2, 6, 2))
sketch11.addConstraint(Sketcher.Constraint("Equal", 3, 5))
sketch11.addConstraint(Sketcher.Constraint("DistanceX", 1, 1, 1, 2, Q("5 mm")))
sketch11.addConstraint(Sketcher.Constraint("DistanceY", 0, 2, 0, 1, Q("1.5 mm")))
sketch11.addConstraint(Sketcher.Constraint("DistanceX", -1, 1, 0, 2, Q("45.8 mm")))
sketch11.addConstraint(Sketcher.Constraint("DistanceY", -1, 1, 0, 2, Q("38.1 mm")))
sketch11.addConstraint(Sketcher.Constraint("DistanceX", 4, 2, 4, 1, Q("4.459 mm")))
groove2 = doc.addObject("PartDesign::Groove", "Groove001")
body.addObject(groove2)
groove2.Profile = sketch11
groove2.ReferenceAxis = (sketch11, ["Axis0"])
groove2.Angle = 360

# Sketch on YZ plane
sketch12 = doc.addObject("Sketcher::SketchObject", "Sketch011")
body.addObject(sketch12)
sketch12.AttachmentSupport = (doc.YZ_Plane, [""])
sketch12.MapMode = "FlatFace"
sketch12.AttachmentOffset = App.Placement(V(0, 0, 50.8), App.Rotation())
add_polygon(sketch12, [(30.7, 16.1), (30.7, -16.9), (58.2, -16.9), (31.2, -1.3), (31.2, 1.3), (56.8, 16.1)])  # lines 0-5
sketch12.addConstraint(Sketcher.Constraint("Vertical", 0))
sketch12.addConstraint(Sketcher.Constraint("Horizontal", 1))
sketch12.addConstraint(Sketcher.Constraint("Vertical", 3))
sketch12.addConstraint(Sketcher.Constraint("Horizontal", 5))
sketch12.addConstraint(Sketcher.Constraint("DistanceY", 0, 2, 0, 1, Q("33 mm")))
sketch12.addConstraint(Sketcher.Constraint("Angle", 2, Q("150 deg")))
sketch12.addConstraint(Sketcher.Constraint("Angle", 4, Q("30 deg")))
sketch12.addConstraint(Sketcher.Constraint("DistanceX", -1, 1, 0, 2, Q("30.7 mm")))
sketch12.addConstraint(Sketcher.Constraint("DistanceX", -1, 1, 2, 2, Q("31.2 mm")))
sketch12.addConstraint(Sketcher.Constraint("DistanceY", 3, 1, 3, 2, Q("2.645299 mm")))
sketch12.addConstraint(Sketcher.Constraint("Distance", 2, Q("31.188101 mm")))
sketch12.addConstraint(Sketcher.Constraint("DistanceY", 0, 2, -1, 1, Q("16.9167 mm")))
pocket8 = doc.addObject("PartDesign::Pocket", "Pocket007")
body.addObject(pocket8)
pocket8.Profile = sketch12
pocket8.Type = "TwoLengths"
pocket8.Length = 6
pocket8.Length2 = 6
pocket8.Reversed = True

doc.recompute()
